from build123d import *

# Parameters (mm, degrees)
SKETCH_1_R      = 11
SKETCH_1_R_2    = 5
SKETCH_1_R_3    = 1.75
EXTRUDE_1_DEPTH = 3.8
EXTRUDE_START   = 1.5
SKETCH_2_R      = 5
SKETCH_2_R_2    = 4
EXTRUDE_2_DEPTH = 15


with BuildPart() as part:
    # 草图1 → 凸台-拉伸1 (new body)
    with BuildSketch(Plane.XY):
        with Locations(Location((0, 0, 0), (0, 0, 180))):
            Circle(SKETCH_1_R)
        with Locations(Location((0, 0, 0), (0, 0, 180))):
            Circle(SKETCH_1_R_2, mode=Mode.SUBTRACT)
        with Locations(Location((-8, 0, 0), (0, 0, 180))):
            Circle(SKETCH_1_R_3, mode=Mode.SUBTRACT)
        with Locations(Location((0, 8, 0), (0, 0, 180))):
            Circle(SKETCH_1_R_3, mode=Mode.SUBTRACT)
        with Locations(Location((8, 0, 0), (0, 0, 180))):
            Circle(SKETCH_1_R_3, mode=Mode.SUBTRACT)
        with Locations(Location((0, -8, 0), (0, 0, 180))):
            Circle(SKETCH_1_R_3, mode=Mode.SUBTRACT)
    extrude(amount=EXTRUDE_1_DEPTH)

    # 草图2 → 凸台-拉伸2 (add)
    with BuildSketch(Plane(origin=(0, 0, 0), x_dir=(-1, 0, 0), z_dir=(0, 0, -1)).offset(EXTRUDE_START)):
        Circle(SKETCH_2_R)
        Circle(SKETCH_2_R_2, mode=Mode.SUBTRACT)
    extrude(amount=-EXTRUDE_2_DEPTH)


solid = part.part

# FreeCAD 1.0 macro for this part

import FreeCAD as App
import Part
import Sketcher

doc = App.newDocument("Part")
body = doc.addObject("PartDesign::Body", "Body")

# Sketch on XY plane
sketch1 = body.newObject("Sketcher::SketchObject", "Sketch")
sketch1.AttachmentSupport = (doc.getObject("XY_Plane"), [""])
sketch1.MapMode = "FlatFace"
sketch1.addGeometry([
    Part.Circle(App.Vector(0, 0, 0), App.Vector(0, 0, 1), 11),  # 0
    Part.Circle(App.Vector(0, 8, 0), App.Vector(0, 0, 1), 1.8),  # 1
    Part.Circle(App.Vector(8, 0, 0), App.Vector(0, 0, 1), 1.8),  # 2
    Part.Circle(App.Vector(0, 0, 0), App.Vector(0, 0, 1), 5),  # 3
    Part.Circle(App.Vector(-8, 0, 0), App.Vector(0, 0, 1), 1.8),  # 4
    Part.Circle(App.Vector(0, -8, 0), App.Vector(0, 0, 1), 1.8),  # 5
], False)
sketch1.addConstraint([
    Sketcher.Constraint("Coincident", 0, 3, -1, 1),
    Sketcher.Constraint("Coincident", 3, 3, -1, 1),
    Sketcher.Constraint("Equal", 1, 2),
    Sketcher.Constraint("Equal", 2, 4),
    Sketcher.Constraint("Equal", 4, 5),
    Sketcher.Constraint("Symmetric", 2, 3, 4, 3, -1, 1),
    Sketcher.Constraint("Symmetric", 1, 3, 5, 3, -1, 1),
    Sketcher.Constraint("PointOnObject", 1, 3, -2),
    Sketcher.Constraint("PointOnObject", 2, 3, -1),
    Sketcher.Constraint("Diameter", 0, 22.0),
    Sketcher.Constraint("Diameter", 3, 10.0),
    Sketcher.Constraint("Diameter", 1, 3.5),
    Sketcher.Constraint("DistanceY", -1, 1, 1, 3, 8.0),
    Sketcher.Constraint("DistanceX", -1, 1, 2, 3, 8.0),
])
pad1 = body.newObject("PartDesign::Pad", "Pad")
pad1.Profile = sketch1
pad1.Length = 3.8

# Sketch on XY plane
sketch2 = body.newObject("Sketcher::SketchObject", "Sketch001")
sketch2.AttachmentSupport = (doc.getObject("XY_Plane"), [""])
sketch2.MapMode = "FlatFace"
sketch2.AttachmentOffset = App.Placement(App.Vector(0, 0, -1.5), App.Rotation())
sketch2.addGeometry([
    Part.Circle(App.Vector(0, 0, 0), App.Vector(0, 0, 1), 5),
    Part.Circle(App.Vector(0, 0, 0), App.Vector(0, 0, 1), 4),
], False)
sketch2.addConstraint([
    Sketcher.Constraint("Coincident", 0, 3, -1, 1),
    Sketcher.Constraint("Coincident", 1, 3, -1, 1),
    Sketcher.Constraint("Diameter", 0, 10.0),
    Sketcher.Constraint("Diameter", 1, 8.0),
])
pad2 = body.newObject("PartDesign::Pad", "Pad001")
pad2.Profile = sketch2
pad2.Length = 15

doc.recompute()
